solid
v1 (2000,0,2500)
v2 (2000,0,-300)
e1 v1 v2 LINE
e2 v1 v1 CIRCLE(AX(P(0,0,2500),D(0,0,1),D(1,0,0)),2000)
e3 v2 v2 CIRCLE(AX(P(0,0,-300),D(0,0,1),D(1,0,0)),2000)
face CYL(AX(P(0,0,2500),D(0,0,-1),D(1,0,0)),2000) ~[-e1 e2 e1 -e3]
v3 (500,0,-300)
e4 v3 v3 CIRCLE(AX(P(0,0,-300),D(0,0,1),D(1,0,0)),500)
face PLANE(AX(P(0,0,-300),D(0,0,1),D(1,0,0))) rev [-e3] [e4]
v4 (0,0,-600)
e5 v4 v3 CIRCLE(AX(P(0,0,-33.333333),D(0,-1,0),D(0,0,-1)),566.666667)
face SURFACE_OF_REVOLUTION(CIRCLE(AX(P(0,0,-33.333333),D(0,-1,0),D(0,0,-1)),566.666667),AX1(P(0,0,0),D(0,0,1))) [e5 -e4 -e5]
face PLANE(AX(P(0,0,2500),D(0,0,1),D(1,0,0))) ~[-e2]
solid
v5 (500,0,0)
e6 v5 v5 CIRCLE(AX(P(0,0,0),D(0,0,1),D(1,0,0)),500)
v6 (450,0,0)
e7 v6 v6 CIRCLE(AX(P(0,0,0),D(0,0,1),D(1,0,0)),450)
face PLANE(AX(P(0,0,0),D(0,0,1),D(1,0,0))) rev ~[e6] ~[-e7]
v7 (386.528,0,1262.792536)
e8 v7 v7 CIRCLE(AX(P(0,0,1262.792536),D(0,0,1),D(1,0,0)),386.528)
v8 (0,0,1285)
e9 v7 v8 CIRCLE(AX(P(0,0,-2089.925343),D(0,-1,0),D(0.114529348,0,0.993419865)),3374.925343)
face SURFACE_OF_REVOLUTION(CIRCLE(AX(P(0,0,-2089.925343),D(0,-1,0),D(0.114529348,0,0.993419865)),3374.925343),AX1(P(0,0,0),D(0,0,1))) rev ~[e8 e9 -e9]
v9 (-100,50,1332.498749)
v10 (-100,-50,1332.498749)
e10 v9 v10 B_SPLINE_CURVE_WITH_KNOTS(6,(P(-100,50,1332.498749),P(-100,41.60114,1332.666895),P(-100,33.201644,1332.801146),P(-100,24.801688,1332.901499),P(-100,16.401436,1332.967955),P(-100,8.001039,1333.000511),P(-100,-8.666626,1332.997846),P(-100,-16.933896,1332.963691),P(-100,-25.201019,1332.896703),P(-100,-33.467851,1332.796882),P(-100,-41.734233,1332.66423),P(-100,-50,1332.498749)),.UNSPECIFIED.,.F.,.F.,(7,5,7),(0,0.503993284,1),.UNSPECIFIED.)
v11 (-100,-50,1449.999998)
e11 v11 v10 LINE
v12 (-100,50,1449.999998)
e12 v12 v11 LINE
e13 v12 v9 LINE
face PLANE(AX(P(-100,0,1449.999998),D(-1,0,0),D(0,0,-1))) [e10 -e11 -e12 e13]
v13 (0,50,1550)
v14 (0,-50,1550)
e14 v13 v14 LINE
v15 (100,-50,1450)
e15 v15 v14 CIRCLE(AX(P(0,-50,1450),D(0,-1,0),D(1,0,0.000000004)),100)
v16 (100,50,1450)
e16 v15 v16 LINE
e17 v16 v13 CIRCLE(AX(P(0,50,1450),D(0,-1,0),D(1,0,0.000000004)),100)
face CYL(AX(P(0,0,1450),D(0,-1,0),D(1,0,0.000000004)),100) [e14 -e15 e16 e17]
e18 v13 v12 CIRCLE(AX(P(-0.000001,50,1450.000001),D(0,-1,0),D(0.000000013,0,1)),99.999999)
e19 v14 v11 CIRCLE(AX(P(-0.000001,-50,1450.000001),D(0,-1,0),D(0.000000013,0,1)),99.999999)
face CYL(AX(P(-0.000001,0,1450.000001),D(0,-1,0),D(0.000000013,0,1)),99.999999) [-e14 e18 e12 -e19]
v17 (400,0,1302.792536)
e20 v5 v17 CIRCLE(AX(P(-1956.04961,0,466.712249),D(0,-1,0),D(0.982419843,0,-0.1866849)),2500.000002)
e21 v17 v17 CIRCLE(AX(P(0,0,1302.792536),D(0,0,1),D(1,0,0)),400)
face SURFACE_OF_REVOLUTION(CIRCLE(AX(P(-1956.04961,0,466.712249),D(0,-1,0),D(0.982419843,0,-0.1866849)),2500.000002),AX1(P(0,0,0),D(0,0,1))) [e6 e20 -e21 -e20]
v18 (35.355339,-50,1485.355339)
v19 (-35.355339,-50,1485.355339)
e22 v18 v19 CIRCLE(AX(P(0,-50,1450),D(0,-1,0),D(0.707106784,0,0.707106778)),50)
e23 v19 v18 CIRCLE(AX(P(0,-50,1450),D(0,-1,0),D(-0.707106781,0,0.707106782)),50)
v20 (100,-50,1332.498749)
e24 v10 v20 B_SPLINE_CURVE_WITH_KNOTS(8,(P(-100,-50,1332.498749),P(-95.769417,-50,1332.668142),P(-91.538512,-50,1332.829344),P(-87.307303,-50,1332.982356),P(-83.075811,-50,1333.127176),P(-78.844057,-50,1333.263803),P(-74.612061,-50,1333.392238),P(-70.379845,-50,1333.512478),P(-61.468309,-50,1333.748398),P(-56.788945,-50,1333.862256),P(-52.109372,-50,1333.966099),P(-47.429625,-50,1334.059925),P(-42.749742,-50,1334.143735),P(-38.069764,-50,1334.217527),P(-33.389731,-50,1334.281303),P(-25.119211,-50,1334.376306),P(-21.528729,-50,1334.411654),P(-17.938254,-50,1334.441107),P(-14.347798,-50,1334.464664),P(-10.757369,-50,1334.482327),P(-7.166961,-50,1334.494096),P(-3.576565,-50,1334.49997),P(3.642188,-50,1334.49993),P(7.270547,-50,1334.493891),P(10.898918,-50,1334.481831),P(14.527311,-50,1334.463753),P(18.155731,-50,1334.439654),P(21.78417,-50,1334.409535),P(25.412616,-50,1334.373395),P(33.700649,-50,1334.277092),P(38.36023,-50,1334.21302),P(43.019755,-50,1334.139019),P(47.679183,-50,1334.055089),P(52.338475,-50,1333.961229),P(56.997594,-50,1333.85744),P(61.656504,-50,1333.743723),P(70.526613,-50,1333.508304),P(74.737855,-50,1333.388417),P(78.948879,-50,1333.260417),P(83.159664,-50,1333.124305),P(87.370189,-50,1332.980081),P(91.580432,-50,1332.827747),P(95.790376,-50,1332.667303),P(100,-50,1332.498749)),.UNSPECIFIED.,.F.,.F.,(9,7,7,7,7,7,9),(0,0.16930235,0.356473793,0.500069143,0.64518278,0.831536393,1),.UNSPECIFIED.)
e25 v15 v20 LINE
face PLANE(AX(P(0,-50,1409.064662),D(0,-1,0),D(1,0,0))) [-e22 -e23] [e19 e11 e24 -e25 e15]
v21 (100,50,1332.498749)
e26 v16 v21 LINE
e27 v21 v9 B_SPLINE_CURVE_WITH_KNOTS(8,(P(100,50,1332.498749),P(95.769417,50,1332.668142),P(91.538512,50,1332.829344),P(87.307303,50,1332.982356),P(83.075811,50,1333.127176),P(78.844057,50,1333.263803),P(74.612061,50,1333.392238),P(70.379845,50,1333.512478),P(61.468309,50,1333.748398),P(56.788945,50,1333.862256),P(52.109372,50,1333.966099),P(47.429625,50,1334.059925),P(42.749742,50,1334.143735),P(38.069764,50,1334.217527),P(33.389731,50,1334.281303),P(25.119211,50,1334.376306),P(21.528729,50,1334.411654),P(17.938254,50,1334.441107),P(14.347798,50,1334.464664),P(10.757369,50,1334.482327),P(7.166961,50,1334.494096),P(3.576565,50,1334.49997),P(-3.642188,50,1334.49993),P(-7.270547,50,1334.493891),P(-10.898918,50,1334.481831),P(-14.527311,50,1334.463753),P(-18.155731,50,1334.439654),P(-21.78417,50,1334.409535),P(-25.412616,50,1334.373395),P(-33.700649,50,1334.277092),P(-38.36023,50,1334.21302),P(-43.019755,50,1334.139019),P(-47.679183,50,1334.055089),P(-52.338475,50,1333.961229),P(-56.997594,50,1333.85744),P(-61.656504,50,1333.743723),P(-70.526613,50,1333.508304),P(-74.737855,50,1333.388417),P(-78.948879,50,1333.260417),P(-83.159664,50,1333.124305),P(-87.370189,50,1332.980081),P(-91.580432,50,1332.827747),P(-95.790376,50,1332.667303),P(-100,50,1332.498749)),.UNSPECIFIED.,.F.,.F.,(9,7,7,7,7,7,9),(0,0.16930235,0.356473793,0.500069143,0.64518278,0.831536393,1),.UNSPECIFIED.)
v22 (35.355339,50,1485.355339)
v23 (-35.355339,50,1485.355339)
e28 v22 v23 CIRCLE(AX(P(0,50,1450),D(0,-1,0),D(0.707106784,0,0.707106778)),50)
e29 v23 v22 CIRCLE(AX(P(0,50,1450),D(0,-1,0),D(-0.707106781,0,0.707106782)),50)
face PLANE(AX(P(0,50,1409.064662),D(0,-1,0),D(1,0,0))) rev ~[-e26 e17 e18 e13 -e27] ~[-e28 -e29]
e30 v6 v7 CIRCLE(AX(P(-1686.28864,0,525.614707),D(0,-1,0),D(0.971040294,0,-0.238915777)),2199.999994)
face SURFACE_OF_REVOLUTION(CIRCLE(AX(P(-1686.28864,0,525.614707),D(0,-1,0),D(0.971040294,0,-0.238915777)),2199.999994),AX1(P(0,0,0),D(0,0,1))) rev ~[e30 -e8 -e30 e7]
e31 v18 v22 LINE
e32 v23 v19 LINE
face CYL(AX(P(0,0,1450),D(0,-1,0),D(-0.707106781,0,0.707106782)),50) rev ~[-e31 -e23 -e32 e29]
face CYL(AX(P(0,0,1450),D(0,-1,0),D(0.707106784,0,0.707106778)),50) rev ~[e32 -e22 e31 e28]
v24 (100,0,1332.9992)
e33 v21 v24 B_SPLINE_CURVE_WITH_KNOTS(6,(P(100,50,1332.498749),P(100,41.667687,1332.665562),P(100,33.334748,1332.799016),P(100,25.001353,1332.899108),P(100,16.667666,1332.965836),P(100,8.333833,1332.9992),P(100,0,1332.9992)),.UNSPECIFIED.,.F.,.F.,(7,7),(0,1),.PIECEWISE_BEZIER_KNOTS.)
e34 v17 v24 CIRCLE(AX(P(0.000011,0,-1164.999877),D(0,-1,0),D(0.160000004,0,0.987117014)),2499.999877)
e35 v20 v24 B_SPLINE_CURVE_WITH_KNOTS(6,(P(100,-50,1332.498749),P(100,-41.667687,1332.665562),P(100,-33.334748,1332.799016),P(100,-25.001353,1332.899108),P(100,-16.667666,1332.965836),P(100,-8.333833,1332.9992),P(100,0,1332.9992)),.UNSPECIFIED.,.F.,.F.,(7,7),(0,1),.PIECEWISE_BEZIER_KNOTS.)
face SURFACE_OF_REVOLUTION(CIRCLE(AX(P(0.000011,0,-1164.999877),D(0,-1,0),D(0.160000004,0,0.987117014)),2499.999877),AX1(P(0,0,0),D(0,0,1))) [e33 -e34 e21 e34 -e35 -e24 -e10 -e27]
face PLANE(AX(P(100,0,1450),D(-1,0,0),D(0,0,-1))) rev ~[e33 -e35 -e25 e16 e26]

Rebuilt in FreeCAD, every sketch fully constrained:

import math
import FreeCAD as App
import Part
import Sketcher

doc = App.newDocument("Part")
body = doc.addObject("PartDesign::Body", "Body")

# Sketch on XZ plane
sketch1 = body.newObject("Sketcher::SketchObject", "Sketch")
sketch1.AttachmentSupport = (doc.getObject("XZ_Plane"), [""])
sketch1.MapMode = "FlatFace"
sketch1.addGeometry(Part.LineSegment(App.Vector(2000, 2500, 0), App.Vector(0, 2500, 0)), False)
sketch1.addGeometry(Part.LineSegment(App.Vector(0, 2500, 0), App.Vector(0, -600, 0)), False)
sketch1.addGeometry(Part.ArcOfCircle(Part.Circle(App.Vector(0, -33, 0), App.Vector(0, 0, 1), 567), math.radians(-90), math.radians(-28)), False)
sketch1.addGeometry(Part.LineSegment(App.Vector(500, -300, 0), App.Vector(2000, -300, 0)), False)
sketch1.addGeometry(Part.LineSegment(App.Vector(2000, -300, 0), App.Vector(2000, 2500, 0)), False)
sketch1.addConstraint(Sketcher.Constraint("Coincident", 0, 2, 1, 1))
sketch1.addConstraint(Sketcher.Constraint("Coincident", 1, 2, 2, 1))
sketch1.addConstraint(Sketcher.Constraint("Coincident", 2, 2, 3, 1))
sketch1.addConstraint(Sketcher.Constraint("Coincident", 3, 2, 4, 1))
sketch1.addConstraint(Sketcher.Constraint("Coincident", 4, 2, 0, 1))
sketch1.addConstraint(Sketcher.Constraint("Horizontal", 0))
sketch1.addConstraint(Sketcher.Constraint("Vertical", 1))
sketch1.addConstraint(Sketcher.Constraint("Horizontal", 3))
sketch1.addConstraint(Sketcher.Constraint("Vertical", 4))
sketch1.addConstraint(Sketcher.Constraint("PointOnObject", 2, 3, -2))
sketch1.addConstraint(Sketcher.Constraint("PointOnObject", 0, 2, -2))
sketch1.addConstraint(Sketcher.Constraint("DistanceX", 0, 2, 0, 1, 2000.0))
sketch1.addConstraint(Sketcher.Constraint("DistanceX", 3, 1, 3, 2, 1500.0))
sketch1.addConstraint(Sketcher.Constraint("DistanceY", 1, 2, 1, 1, 3100.0))
sketch1.addConstraint(Sketcher.Constraint("DistanceY", 4, 1, 4, 2, 2800.0))
sketch1.addConstraint(Sketcher.Constraint("DistanceY", -1, 1, 0, 2, 2500.0))
revolution = body.newObject("PartDesign::Revolution", "Revolution")
revolution.Profile = sketch1
revolution.ReferenceAxis = (sketch1, ["V_Axis"])
revolution.Angle = 360
body2 = doc.addObject("PartDesign::Body", "Body001")

# Sketch on XZ plane
sketch2 = body2.newObject("Sketcher::SketchObject", "Sketch001")
sketch2.AttachmentSupport = (doc.getObject("XZ_Plane001"), [""])
sketch2.MapMode = "FlatFace"
sketch2.addGeometry(Part.ArcOfCircle(Part.Circle(App.Vector(0, 1450, 0), App.Vector(0, 0, 1), 50), math.radians(45), math.radians(135)), False)
sketch2.addGeometry(Part.ArcOfCircle(Part.Circle(App.Vector(0, 1450, 0), App.Vector(0, 0, 1), 50), math.radians(135), math.radians(405)), False)
sketch2.addConstraint(Sketcher.Constraint("Tangent", 0, 1, 1, 2))
sketch2.addConstraint(Sketcher.Constraint("Coincident", 1, 1, 0, 2))
sketch2.addConstraint(Sketcher.Constraint("Symmetric", 0, 1, 1, 1, -2))
sketch2.addConstraint(Sketcher.Constraint("Radius", 0, 50.0))
sketch2.addConstraint(Sketcher.Constraint("DistanceY", -1, 1, 0, 3, 1450.0))
sketch2.addConstraint(Sketcher.Constraint("DistanceX", -1, 1, 0, 1, 35.355339))
pad1 = body2.newObject("PartDesign::Pad", "Pad")
pad1.Profile = sketch2
pad1.Length = 500
pad1.Midplane = True
body3 = doc.addObject("PartDesign::Body", "Body002")

# Sketch on XZ plane
sketch3 = body3.newObject("Sketcher::SketchObject", "Sketch002")
sketch3.AttachmentSupport = (doc.getObject("XZ_Plane002"), [""])
sketch3.MapMode = "FlatFace"
sketch3.addGeometry(Part.ArcOfCircle(Part.Circle(App.Vector(0, 1450, 0), App.Vector(0, 0, 1), 100), math.radians(0), math.radians(90)), False)
sketch3.addGeometry(Part.ArcOfCircle(Part.Circle(App.Vector(0, 1450, 0), App.Vector(0, 0, 1), 100), math.radians(90), math.radians(180)), False)
sketch3.addGeometry(Part.LineSegment(App.Vector(-100, 1450, 0), App.Vector(-100, 1300, 0)), False)
sketch3.addGeometry(Part.LineSegment(App.Vector(-100, 1300, 0), App.Vector(100, 1300, 0)), False)
sketch3.addGeometry(Part.LineSegment(App.Vector(100, 1300, 0), App.Vector(100, 1450, 0)), False)
sketch3.addConstraint(Sketcher.Constraint("Tangent", 0, 2, 1, 1))
sketch3.addConstraint(Sketcher.Constraint("Tangent", 1, 2, 2, 1))
sketch3.addConstraint(Sketcher.Constraint("Coincident", 2, 2, 3, 1))
sketch3.addConstraint(Sketcher.Constraint("Coincident", 3, 2, 4, 1))
sketch3.addConstraint(Sketcher.Constraint("Tangent", 4, 2, 0, 1))
sketch3.addConstraint(Sketcher.Constraint("Vertical", 2))
sketch3.addConstraint(Sketcher.Constraint("Horizontal", 3))
sketch3.addConstraint(Sketcher.Constraint("Vertical", 4))
sketch3.addConstraint(Sketcher.Constraint("Equal", 0, 1))
sketch3.addConstraint(Sketcher.Constraint("PointOnObject", 0, 3, -2))
sketch3.addConstraint(Sketcher.Constraint("PointOnObject", 0, 2, -2))
sketch3.addConstraint(Sketcher.Constraint("Radius", 0, 100.0))
sketch3.addConstraint(Sketcher.Constraint("DistanceY", 2, 2, 2, 1, 149.999998))
sketch3.addConstraint(Sketcher.Constraint("DistanceY", -1, 1, 0, 3, 1450.0))
pad2 = body3.newObject("PartDesign::Pad", "Pad001")
pad2.Profile = sketch3
pad2.Length = 100
pad2.Midplane = True
body4 = doc.addObject("PartDesign::Body", "Body003")

# Sketch on XZ plane
sketch4 = body4.newObject("Sketcher::SketchObject", "Sketch003")
sketch4.AttachmentSupport = (doc.getObject("XZ_Plane003"), [""])
sketch4.MapMode = "FlatFace"
sketch4.addGeometry(Part.ArcOfCircle(Part.Circle(App.Vector(0, -2090, 0), App.Vector(0, 0, 1), 3375), math.radians(83.42), math.radians(90)), False)
sketch4.addGeometry(Part.ArcOfCircle(Part.Circle(App.Vector(-1686, 526, 0), App.Vector(0, 0, 1), 2200), math.radians(-14), math.radians(20)), False)
sketch4.addGeometry(Part.LineSegment(App.Vector(450, 0, 0), App.Vector(500, 0, 0)), False)
sketch4.addGeometry(Part.ArcOfCircle(Part.Circle(App.Vector(-1956, 467, 0), App.Vector(0, 0, 1), 2500), math.radians(-11), math.radians(20)), False)
sketch4.addGeometry(Part.ArcOfCircle(Part.Circle(App.Vector(0, -1165, 0), App.Vector(0, 0, 1), 2500), math.radians(80.79), math.radians(90)), False)
sketch4.addGeometry(Part.LineSegment(App.Vector(0, 1335, 0), App.Vector(0, 1285, 0)), False)
sketch4.addConstraint(Sketcher.Constraint("Coincident", 0, 1, 1, 2))
sketch4.addConstraint(Sketcher.Constraint("Coincident", 1, 1, 2, 1))
sketch4.addConstraint(Sketcher.Constraint("Coincident", 2, 2, 3, 1))
sketch4.addConstraint(Sketcher.Constraint("Coincident", 3, 2, 4, 1))
sketch4.addConstraint(Sketcher.Constraint("Coincident", 4, 2, 5, 1))
sketch4.addConstraint(Sketcher.Constraint("Coincident", 5, 2, 0, 2))
sketch4.addConstraint(Sketcher.Constraint("Horizontal", 2))
sketch4.addConstraint(Sketcher.Constraint("Vertical", 5))
sketch4.addConstraint(Sketcher.Constraint("PointOnObject", 0, 3, -2))
sketch4.addConstraint(Sketcher.Constraint("PointOnObject", 2, 2, -1))
sketch4.addConstraint(Sketcher.Constraint("PointOnObject", 5, 2, -2))
sketch4.addConstraint(Sketcher.Constraint("Equal", 2, 5))
sketch4.addConstraint(Sketcher.Constraint("Radius", 3, 2500.000002))
sketch4.addConstraint(Sketcher.Constraint("DistanceX", 2, 1, 2, 2, 50.0))
sketch4.addConstraint(Sketcher.Constraint("DistanceX", -1, 1, 2, 2, 500.0))
sketch4.addConstraint(Sketcher.Constraint("DistanceY", -1, 1, 4, 2, 1335.0))
sketch4.addConstraint(Sketcher.Constraint("Radius", 0, 3374.925343))
sketch4.addConstraint(Sketcher.Constraint("Radius", 1, 2199.999994))
sketch4.addConstraint(Sketcher.Constraint("Radius", 4, 2499.999877))
sketch4.addConstraint(Sketcher.Constraint("DistanceX", 1, 3, -1, 1, 1686.28864))
sketch4.addConstraint(Sketcher.Constraint("DistanceX", 3, 3, -1, 1, 1956.04961))
sketch4.addConstraint(Sketcher.Constraint("DistanceX", 1, 3, 4, 3, 1686.288651))
revolution2 = body4.newObject("PartDesign::Revolution", "Revolution001")
revolution2.Profile = sketch4
revolution2.ReferenceAxis = (sketch4, ["V_Axis"])
revolution2.Angle = 360
doc.recompute()

boolean = body4.newObject("PartDesign::Boolean", "Boolean")
boolean.Type = "Fuse"
boolean.addObjects([body3])
doc.recompute()

boolean2 = body4.newObject("PartDesign::Boolean", "Boolean001")
boolean2.Type = "Cut"
boolean2.addObjects([body2])

doc.recompute()
